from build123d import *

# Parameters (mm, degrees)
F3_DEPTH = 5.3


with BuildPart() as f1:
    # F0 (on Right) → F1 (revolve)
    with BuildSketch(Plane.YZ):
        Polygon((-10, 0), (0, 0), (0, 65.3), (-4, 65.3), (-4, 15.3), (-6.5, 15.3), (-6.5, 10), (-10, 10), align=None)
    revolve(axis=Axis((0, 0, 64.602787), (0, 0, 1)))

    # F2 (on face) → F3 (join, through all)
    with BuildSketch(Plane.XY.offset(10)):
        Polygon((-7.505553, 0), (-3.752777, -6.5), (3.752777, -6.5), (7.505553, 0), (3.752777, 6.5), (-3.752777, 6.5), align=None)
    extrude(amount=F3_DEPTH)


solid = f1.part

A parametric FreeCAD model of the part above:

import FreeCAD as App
import Part
import Sketcher
Q = App.Units.Quantity


def add_polygon(sketch, points):
    """Adds a closed chain of lines whose ends are joined by coincident constraints."""
    first, n = sketch.GeometryCount, len(points)
    for a, b in zip(points, points[1:] + points[:1]):
        sketch.addGeometry(Part.LineSegment(App.Vector(*a, 0), App.Vector(*b, 0)), False)
    for i in range(n):
        sketch.addConstraint(Sketcher.Constraint("Coincident", first + i, 2, first + (i + 1) % n, 1))

doc = App.newDocument("Part")
params = doc.addObject("Spreadsheet::Sheet", "Params")
for row, (alias, value) in enumerate([
    ("sketch1_width", "10 mm"),
    ("sketch1_width2", "4 mm"),
    ("sketch1_height", "50 mm"),
    ("sketch1_width3", "2.5 mm"),
    ("sketch1_height2", "65.3 mm"),
    ("revolution_angle", "360 deg"),
    ("pad1_length", "5.3 mm"),
], start=1):
    params.set(f"A{row}", alias)
    params.set(f"B{row}", "=" + value)
    params.setAlias(f"B{row}", alias)

body = doc.addObject("PartDesign::Body", "Body")

sketch1 = doc.addObject("Sketcher::SketchObject", "Sketch")
body.addObject(sketch1)
sketch1.AttachmentSupport = (doc.YZ_Plane, [""])
sketch1.MapMode = "FlatFace"
add_polygon(sketch1, [(-10, 0), (0, 0), (0, 65.3), (-4, 65.3), (-4, 15.3), (-6.5, 15.3), (-6.5, 10), (-10, 10)])
sketch1.addConstraint(Sketcher.Constraint("Horizontal", 0))
sketch1.addConstraint(Sketcher.Constraint("Vertical", 1))
sketch1.addConstraint(Sketcher.Constraint("Horizontal", 2))
sketch1.addConstraint(Sketcher.Constraint("Vertical", 3))
sketch1.addConstraint(Sketcher.Constraint("Horizontal", 4))
sketch1.addConstraint(Sketcher.Constraint("Vertical", 5))
sketch1.addConstraint(Sketcher.Constraint("Horizontal", 6))
sketch1.addConstraint(Sketcher.Constraint("Vertical", 7))
sketch1.addConstraint(Sketcher.Constraint("Coincident", 0, 2, -1, 1))
sketch1.addConstraint(Sketcher.Constraint("Equal", 0, 7))
sketch1.addConstraint(Sketcher.Constraint("DistanceX", 0, 1, 0, 2, Q("10 mm")))
sketch1.addConstraint(Sketcher.Constraint("DistanceX", 2, 2, 2, 1, Q("4 mm")))
sketch1.addConstraint(Sketcher.Constraint("DistanceY", 3, 2, 3, 1, Q("50 mm")))
sketch1.addConstraint(Sketcher.Constraint("DistanceX", 4, 2, 4, 1, Q("2.5 mm")))
sketch1.addConstraint(Sketcher.Constraint("DistanceY", 1, 1, 1, 2, Q("65.3 mm")))
sketch1.setExpression("Constraints[18]", "Params.sketch1_width")
sketch1.setExpression("Constraints[19]", "Params.sketch1_width2")
sketch1.setExpression("Constraints[20]", "Params.sketch1_height")
sketch1.setExpression("Constraints[21]", "Params.sketch1_width3")
sketch1.setExpression("Constraints[22]", "Params.sketch1_height2")
revolution = doc.addObject("PartDesign::Revolution", "Revolution")
body.addObject(revolution)
revolution.Profile = sketch1
revolution.ReferenceAxis = (sketch1, ["V_Axis"])
revolution.setExpression("Angle", "Params.revolution_angle")

sketch2 = doc.addObject("Sketcher::SketchObject", "Sketch001")
body.addObject(sketch2)
sketch2.AttachmentSupport = (doc.XY_Plane, [""])
sketch2.MapMode = "FlatFace"
sketch2.AttachmentOffset = App.Placement(App.Vector(0, 0, 10), App.Rotation())
add_polygon(sketch2, [(-7.505553, 0), (-3.752777, -6.5), (3.752777, -6.5), (7.505553, 0), (3.752777, 6.5), (-3.752777, 6.5)])
sketch2.addConstraint(Sketcher.Constraint("Horizontal", 1))
sketch2.addConstraint(Sketcher.Constraint("Horizontal", 4))
sketch2.addConstraint(Sketcher.Constraint("Symmetric", 0, 2, 3, 2, -1, 1))
sketch2.addConstraint(Sketcher.Constraint("Symmetric", 2, 2, 5, 2, -1, 1))
sketch2.addConstraint(Sketcher.Constraint("PointOnObject", 2, 2, -1))
sketch2.addConstraint(Sketcher.Constraint("Parallel", 2, 5))
sketch2.addConstraint(Sketcher.Constraint("Vertical", 1, 2, 3, 2))
sketch2.addConstraint(Sketcher.Constraint("Angle", 0, Q("-60.000005 deg")))
sketch2.addConstraint(Sketcher.Constraint("DistanceY", 1, 2, 3, 2, Q("13 mm")))
sketch2.addConstraint(Sketcher.Constraint("DistanceX", 1, 1, 1, 2, Q("7.505554 mm")))
pad1 = doc.addObject("PartDesign::Pad", "Pad")
body.addObject(pad1)
pad1.Profile = sketch2
pad1.setExpression("Length", "Params.pad1_length")

doc.recompute()
